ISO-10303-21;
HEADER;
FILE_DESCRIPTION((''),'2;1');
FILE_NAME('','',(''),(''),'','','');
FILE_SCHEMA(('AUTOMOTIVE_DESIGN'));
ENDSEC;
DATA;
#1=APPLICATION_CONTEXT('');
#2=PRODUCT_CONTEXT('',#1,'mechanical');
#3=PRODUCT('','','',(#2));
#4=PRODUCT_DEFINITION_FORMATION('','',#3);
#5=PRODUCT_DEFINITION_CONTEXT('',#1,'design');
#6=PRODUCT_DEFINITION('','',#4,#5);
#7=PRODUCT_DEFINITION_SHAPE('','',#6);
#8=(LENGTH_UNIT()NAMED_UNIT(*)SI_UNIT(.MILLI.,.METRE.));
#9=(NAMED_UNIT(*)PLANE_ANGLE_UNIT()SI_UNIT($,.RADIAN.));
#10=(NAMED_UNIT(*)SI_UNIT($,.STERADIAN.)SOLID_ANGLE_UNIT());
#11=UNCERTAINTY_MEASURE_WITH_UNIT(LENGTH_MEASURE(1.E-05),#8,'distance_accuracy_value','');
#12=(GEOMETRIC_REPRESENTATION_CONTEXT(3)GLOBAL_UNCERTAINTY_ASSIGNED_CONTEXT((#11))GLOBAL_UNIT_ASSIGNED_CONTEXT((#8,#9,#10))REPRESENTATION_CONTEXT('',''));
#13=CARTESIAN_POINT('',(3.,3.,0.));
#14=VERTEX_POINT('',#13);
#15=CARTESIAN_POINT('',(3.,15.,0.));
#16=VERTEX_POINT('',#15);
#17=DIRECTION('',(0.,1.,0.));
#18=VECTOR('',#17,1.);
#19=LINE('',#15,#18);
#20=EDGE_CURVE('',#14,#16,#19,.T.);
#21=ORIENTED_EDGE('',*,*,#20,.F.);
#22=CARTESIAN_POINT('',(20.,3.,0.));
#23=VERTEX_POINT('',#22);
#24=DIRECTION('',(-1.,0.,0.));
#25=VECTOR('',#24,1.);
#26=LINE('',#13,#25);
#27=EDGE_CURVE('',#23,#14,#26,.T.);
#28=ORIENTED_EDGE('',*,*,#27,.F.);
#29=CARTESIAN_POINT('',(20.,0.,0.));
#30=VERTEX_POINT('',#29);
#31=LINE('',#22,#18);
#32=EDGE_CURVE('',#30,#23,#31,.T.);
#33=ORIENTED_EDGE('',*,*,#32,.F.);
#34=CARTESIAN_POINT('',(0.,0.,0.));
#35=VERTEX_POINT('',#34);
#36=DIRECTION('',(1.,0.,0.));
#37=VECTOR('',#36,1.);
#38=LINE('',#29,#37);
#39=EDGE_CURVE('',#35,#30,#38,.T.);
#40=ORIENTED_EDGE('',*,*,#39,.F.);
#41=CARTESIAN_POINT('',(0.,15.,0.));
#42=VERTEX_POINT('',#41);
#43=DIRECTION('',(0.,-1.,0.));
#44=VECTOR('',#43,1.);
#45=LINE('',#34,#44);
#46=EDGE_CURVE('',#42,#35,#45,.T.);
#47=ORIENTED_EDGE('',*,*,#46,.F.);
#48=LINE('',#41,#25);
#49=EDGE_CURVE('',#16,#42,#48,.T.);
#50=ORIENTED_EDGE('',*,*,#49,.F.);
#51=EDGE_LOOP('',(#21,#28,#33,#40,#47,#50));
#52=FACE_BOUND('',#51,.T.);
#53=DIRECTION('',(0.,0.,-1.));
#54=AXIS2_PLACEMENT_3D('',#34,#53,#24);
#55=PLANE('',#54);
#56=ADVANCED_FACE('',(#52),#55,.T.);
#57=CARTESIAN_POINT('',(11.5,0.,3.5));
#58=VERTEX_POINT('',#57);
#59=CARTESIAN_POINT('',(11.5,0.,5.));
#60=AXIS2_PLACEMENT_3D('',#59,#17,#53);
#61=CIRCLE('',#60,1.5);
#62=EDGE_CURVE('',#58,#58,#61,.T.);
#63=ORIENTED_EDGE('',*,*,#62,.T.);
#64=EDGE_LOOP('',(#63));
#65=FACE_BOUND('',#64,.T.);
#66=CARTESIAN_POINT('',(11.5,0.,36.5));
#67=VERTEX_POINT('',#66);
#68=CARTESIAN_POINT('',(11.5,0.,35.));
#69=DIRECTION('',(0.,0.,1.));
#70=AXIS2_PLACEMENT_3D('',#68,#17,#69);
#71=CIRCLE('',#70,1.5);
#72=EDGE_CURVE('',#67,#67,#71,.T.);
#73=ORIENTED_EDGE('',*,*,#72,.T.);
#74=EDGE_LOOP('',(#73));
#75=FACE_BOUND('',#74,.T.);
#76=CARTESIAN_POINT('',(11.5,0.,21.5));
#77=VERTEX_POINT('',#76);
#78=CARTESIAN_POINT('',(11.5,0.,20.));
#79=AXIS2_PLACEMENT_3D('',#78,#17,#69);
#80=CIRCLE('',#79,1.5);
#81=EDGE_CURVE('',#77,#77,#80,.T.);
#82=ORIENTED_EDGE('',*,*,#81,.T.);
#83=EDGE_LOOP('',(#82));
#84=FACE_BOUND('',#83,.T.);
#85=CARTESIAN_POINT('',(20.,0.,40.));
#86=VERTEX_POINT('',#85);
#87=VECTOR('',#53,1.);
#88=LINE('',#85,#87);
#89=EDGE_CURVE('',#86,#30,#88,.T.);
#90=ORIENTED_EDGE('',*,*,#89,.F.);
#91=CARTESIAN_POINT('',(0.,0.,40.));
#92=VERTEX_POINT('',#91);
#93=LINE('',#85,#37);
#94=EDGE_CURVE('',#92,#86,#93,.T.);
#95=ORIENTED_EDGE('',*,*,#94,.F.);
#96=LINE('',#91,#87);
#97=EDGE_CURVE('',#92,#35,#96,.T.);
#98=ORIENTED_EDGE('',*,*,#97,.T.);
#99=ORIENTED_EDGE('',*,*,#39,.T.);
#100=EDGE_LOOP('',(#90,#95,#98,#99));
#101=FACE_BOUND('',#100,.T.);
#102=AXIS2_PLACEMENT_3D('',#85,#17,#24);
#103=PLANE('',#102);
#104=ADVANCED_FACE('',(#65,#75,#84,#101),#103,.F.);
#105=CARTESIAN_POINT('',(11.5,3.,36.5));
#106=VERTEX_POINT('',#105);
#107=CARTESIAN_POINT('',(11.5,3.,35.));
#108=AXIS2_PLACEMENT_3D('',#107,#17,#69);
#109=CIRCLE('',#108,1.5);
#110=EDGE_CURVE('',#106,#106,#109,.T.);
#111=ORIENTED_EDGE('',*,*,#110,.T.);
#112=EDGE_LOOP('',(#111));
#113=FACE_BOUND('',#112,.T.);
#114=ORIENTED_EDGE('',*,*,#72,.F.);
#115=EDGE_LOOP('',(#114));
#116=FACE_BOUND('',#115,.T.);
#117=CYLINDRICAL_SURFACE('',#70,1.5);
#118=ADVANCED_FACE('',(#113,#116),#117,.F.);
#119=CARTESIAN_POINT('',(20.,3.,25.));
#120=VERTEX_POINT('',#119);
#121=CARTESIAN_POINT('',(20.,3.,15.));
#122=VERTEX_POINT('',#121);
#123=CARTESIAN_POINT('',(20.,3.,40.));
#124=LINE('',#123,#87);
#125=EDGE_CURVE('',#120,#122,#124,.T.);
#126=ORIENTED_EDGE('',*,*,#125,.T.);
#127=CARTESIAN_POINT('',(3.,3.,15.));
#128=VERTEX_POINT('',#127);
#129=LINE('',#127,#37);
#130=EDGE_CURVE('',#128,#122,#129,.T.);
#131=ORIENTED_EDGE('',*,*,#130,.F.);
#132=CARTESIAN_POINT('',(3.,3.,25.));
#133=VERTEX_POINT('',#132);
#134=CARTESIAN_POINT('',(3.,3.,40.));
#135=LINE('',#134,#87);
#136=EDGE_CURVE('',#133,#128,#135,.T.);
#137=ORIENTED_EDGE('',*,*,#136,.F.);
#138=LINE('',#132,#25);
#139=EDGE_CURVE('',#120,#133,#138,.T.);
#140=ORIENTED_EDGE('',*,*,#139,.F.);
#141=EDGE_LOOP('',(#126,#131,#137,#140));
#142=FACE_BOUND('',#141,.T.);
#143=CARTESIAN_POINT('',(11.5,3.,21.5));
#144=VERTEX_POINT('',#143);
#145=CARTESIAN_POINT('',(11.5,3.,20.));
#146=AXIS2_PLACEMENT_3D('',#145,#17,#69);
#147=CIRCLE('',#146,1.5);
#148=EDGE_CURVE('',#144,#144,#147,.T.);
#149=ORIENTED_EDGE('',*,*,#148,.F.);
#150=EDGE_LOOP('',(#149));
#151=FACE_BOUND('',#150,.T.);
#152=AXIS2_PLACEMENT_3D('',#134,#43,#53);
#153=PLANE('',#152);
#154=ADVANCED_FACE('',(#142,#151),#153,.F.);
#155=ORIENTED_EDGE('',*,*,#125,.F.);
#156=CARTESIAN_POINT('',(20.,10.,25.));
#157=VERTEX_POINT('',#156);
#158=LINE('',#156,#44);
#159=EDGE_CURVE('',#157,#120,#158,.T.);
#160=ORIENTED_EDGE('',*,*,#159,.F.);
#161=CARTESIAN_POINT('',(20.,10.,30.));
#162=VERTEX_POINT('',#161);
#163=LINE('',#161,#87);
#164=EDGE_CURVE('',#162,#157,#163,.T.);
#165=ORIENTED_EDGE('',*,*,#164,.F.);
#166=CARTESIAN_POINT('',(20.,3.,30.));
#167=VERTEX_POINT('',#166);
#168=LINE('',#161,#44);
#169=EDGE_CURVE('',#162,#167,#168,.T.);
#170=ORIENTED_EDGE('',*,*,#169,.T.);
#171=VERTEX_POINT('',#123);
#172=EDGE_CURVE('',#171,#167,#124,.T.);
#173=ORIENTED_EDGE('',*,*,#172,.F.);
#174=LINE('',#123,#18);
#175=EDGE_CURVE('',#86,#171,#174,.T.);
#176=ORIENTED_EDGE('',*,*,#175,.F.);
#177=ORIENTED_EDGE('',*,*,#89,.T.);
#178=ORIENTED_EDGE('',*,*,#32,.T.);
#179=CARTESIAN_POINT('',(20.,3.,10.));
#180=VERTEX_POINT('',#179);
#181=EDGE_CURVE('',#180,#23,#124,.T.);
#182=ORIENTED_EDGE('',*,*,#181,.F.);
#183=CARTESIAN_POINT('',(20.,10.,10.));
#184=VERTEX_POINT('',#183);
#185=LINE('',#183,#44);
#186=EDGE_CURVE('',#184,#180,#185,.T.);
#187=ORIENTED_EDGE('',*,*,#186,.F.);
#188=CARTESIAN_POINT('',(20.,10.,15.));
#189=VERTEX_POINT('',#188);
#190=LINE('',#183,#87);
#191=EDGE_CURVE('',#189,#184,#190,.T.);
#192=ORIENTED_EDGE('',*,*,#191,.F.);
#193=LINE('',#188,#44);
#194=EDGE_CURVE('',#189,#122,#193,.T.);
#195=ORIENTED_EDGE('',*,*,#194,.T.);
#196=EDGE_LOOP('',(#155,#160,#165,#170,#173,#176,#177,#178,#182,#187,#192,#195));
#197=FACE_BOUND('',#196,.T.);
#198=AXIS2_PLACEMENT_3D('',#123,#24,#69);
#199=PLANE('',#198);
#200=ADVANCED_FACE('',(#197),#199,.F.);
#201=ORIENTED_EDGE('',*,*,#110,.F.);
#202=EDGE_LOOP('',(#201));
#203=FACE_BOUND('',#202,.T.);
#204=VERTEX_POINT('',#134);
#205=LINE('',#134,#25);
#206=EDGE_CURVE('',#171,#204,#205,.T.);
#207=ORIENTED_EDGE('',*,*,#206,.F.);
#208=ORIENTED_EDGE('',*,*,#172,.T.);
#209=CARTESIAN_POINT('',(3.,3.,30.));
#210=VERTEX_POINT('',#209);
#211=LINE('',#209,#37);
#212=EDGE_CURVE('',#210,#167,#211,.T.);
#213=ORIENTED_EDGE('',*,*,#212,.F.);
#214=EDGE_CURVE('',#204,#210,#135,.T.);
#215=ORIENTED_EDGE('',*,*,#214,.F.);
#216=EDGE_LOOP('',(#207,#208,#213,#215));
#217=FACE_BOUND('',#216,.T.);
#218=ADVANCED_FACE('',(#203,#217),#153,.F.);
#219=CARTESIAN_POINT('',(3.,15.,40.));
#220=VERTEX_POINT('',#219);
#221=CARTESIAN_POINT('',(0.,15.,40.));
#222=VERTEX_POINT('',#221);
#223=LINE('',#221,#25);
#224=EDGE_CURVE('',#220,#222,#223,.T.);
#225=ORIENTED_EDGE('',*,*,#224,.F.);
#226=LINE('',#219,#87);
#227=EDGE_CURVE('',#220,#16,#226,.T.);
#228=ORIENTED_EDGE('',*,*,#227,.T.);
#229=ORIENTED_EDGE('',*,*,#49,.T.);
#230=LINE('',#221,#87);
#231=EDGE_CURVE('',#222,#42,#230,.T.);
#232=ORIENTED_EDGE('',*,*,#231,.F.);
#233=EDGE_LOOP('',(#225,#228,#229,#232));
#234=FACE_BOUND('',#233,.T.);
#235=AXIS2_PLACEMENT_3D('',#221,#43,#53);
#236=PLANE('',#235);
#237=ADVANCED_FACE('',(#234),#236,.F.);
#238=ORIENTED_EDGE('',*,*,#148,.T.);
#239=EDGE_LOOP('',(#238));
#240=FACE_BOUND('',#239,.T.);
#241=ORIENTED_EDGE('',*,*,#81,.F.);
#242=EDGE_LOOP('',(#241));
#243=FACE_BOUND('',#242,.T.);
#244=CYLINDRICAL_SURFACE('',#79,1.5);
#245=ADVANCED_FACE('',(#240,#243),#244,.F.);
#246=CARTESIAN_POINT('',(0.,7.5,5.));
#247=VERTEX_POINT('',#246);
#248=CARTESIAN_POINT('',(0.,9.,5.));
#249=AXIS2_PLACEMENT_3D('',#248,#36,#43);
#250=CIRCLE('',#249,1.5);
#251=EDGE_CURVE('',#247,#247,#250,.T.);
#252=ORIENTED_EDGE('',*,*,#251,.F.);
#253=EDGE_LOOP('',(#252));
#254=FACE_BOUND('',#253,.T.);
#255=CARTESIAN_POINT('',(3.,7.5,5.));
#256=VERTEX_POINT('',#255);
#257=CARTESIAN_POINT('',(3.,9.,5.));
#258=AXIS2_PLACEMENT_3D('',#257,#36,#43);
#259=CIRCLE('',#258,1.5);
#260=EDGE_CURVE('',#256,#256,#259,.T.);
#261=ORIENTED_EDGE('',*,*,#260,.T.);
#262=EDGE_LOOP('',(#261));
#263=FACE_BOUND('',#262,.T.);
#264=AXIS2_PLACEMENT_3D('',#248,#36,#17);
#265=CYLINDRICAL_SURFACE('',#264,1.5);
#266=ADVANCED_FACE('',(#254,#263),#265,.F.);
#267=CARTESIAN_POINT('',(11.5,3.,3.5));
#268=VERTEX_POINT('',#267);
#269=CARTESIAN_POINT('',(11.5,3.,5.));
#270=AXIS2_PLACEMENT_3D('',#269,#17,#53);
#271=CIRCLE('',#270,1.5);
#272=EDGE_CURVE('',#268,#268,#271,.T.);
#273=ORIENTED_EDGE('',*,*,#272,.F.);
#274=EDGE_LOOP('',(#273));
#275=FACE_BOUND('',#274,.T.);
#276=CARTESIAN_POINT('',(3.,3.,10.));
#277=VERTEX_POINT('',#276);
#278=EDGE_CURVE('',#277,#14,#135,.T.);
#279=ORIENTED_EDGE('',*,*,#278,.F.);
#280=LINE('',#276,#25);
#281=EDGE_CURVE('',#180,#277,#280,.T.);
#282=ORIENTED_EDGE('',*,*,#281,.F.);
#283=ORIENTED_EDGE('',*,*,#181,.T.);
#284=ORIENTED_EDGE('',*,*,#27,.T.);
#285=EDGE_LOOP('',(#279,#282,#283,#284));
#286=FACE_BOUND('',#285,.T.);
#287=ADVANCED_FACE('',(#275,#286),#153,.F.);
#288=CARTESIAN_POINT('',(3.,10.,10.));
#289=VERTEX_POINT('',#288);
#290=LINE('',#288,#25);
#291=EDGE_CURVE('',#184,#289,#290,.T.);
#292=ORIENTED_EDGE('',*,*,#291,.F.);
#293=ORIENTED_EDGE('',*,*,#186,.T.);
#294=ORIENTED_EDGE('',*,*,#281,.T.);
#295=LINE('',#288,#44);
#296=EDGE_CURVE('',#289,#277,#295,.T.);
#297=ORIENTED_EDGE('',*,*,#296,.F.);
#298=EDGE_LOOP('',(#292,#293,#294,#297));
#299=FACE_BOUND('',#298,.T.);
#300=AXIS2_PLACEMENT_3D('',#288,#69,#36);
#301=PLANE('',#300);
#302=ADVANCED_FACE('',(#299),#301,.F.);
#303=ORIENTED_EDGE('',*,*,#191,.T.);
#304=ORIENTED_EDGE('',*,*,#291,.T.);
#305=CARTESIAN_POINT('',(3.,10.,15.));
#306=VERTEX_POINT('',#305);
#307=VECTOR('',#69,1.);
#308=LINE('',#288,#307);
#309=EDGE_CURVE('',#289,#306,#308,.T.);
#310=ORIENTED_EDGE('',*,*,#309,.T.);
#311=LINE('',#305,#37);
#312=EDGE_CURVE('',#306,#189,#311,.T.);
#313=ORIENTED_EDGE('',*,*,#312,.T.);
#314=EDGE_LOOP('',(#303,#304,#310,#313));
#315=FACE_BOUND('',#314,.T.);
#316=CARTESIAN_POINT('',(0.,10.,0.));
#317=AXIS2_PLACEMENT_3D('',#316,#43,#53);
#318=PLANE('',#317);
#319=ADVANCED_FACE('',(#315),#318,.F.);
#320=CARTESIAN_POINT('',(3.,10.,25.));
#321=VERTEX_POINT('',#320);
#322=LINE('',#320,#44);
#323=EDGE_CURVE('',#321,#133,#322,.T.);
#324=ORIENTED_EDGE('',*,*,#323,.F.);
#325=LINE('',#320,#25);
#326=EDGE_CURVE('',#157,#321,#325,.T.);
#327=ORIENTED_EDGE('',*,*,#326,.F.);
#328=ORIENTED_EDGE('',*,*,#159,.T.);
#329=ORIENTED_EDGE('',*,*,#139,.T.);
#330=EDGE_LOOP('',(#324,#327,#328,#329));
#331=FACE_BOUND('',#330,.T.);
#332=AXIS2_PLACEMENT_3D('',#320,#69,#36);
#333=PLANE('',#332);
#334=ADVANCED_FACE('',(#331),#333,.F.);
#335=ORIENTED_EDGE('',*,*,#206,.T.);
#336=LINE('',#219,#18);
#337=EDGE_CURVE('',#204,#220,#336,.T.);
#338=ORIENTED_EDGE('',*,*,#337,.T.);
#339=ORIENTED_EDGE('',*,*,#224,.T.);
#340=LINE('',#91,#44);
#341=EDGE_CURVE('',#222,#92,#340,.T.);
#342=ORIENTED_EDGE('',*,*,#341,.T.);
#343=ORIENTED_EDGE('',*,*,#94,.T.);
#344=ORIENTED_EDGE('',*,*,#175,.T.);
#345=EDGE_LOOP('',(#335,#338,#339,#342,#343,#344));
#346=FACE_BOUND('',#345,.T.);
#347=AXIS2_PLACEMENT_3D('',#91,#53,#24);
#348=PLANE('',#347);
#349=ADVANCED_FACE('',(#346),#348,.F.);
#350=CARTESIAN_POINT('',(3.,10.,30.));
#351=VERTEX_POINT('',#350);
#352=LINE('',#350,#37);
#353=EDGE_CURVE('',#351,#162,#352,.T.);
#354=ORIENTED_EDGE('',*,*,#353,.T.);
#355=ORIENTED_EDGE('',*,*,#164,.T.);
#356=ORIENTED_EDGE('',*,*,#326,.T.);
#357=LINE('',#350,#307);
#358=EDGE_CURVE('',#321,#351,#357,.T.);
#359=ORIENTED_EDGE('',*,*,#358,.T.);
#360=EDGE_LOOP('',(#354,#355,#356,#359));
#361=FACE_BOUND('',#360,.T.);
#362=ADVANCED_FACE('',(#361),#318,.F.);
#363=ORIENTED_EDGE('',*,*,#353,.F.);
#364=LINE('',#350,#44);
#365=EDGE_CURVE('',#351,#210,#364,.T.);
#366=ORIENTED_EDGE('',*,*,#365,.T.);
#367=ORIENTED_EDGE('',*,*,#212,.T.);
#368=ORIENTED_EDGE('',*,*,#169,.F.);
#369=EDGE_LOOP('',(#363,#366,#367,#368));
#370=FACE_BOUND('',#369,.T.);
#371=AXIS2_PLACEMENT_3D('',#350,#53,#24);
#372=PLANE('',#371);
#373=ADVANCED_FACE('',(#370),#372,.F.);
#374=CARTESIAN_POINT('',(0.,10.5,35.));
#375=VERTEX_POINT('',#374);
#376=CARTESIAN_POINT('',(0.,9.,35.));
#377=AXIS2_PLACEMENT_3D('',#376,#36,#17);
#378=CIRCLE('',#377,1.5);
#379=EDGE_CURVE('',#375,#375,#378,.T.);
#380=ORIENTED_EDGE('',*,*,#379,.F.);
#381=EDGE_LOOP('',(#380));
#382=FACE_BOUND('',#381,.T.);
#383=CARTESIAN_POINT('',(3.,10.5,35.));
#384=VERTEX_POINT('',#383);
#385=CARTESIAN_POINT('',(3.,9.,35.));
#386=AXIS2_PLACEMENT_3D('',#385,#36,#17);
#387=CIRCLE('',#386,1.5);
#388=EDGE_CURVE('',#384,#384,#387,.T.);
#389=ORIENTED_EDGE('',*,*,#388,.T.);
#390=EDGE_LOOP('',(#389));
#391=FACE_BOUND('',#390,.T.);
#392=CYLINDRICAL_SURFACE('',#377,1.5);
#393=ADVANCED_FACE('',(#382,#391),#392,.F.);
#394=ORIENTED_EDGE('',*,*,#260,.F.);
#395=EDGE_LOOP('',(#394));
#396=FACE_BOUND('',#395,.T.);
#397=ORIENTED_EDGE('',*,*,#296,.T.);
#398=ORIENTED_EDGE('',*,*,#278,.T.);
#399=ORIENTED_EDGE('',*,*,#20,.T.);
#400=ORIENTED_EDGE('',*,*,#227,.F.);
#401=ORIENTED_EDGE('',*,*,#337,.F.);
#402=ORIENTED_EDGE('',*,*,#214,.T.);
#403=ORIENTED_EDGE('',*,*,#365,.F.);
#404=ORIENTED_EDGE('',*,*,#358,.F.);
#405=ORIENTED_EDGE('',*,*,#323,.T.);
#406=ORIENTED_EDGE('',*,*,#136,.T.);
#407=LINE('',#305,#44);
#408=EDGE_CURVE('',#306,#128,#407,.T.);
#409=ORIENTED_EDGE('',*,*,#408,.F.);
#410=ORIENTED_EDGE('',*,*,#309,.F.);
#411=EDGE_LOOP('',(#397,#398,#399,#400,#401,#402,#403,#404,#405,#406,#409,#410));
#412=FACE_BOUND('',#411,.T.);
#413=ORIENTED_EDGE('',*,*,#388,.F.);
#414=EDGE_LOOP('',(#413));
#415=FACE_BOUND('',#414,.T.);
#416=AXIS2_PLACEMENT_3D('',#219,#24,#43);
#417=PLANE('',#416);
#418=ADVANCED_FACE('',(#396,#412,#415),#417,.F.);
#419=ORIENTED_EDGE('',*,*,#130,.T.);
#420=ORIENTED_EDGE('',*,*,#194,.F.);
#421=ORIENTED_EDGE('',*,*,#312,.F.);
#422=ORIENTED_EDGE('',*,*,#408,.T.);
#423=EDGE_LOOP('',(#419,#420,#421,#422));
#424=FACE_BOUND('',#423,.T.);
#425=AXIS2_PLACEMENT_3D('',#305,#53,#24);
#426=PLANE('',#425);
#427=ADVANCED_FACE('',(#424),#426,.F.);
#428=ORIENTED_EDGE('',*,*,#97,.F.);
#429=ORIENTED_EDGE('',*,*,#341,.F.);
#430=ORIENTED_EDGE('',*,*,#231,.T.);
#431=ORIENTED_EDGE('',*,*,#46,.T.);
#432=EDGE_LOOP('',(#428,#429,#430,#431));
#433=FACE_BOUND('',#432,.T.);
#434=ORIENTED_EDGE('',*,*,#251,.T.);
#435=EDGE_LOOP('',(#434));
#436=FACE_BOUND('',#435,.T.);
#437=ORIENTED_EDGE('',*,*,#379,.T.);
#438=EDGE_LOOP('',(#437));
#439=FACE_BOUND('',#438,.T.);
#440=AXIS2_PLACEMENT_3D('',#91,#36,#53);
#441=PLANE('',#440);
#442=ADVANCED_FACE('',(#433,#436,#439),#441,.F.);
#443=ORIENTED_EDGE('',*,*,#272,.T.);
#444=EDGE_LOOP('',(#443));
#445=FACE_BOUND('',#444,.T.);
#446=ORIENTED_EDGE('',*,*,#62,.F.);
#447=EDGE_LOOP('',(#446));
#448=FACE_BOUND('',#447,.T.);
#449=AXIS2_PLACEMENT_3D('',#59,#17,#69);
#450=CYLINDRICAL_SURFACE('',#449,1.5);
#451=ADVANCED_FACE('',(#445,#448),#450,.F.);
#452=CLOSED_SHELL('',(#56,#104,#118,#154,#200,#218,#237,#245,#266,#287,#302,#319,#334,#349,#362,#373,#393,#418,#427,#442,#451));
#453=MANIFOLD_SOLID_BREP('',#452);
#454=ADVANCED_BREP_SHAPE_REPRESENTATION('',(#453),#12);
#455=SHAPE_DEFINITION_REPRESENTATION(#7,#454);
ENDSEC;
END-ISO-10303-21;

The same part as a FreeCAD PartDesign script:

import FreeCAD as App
import Part
import Sketcher

doc = App.newDocument("Part")
body = doc.addObject("PartDesign::Body", "Body")

# Sketch on XY plane
sketch1 = doc.addObject("Sketcher::SketchObject", "Sketch")
body.addObject(sketch1)
sketch1.AttachmentSupport = (doc.XY_Plane, [""])
sketch1.MapMode = "FlatFace"
sketch1.addGeometry([
    Part.LineSegment(App.Vector(0, 15, 0), App.Vector(0, 0, 0)),  # 0
    Part.LineSegment(App.Vector(0, 0, 0), App.Vector(20, 0, 0)),  # 1
    Part.LineSegment(App.Vector(20, 0, 0), App.Vector(20, 3, 0)),  # 2
    Part.LineSegment(App.Vector(20, 3, 0), App.Vector(3, 3, 0)),  # 3
    Part.LineSegment(App.Vector(3, 3, 0), App.Vector(3, 15, 0)),  # 4
    Part.LineSegment(App.Vector(3, 15, 0), App.Vector(0, 15, 0)),  # 5
], False)
sketch1.addConstraint([
    Sketcher.Constraint("Coincident", 0, 2, 1, 1),
    Sketcher.Constraint("Coincident", 1, 2, 2, 1),
    Sketcher.Constraint("Coincident", 2, 2, 3, 1),
    Sketcher.Constraint("Coincident", 3, 2, 4, 1),
    Sketcher.Constraint("Coincident", 4, 2, 5, 1),
    Sketcher.Constraint("Coincident", 5, 2, 0, 1),
    Sketcher.Constraint("Vertical", 0),
    Sketcher.Constraint("Horizontal", 1),
    Sketcher.Constraint("Vertical", 2),
    Sketcher.Constraint("Horizontal", 3),
    Sketcher.Constraint("Vertical", 4),
    Sketcher.Constraint("Horizontal", 5),
    Sketcher.Constraint("Coincident", 0, 2, -1, 1),
    Sketcher.Constraint("Equal", 5, 2),
    Sketcher.Constraint("DistanceX", 1, 1, 1, 2, 20.0),
    Sketcher.Constraint("DistanceX", 3, 2, 3, 1, 17.0),
    Sketcher.Constraint("DistanceY", 0, 2, 0, 1, 15.0),
])
pad1 = doc.addObject("PartDesign::Pad", "Pad")
body.addObject(pad1)
pad1.Profile = sketch1
pad1.Length = 40

# Sketch on YZ plane
sketch2 = doc.addObject("Sketcher::SketchObject", "Sketch001")
body.addObject(sketch2)
sketch2.AttachmentSupport = (doc.YZ_Plane, [""])
sketch2.MapMode = "FlatFace"
sketch2.AttachmentOffset = App.Placement(App.Vector(0, 0, 3), App.Rotation())
sketch2.addGeometry([
    Part.Circle(App.Vector(9, 35, 0), App.Vector(0, 0, 1), 1.5),
    Part.Circle(App.Vector(9, 5, 0), App.Vector(0, 0, 1), 1.5),
], False)
sketch2.addConstraint([
    Sketcher.Constraint("Equal", 0, 1),
    Sketcher.Constraint("Vertical", 0, 3, 1, 3),
    Sketcher.Constraint("Diameter", 0, 3.0),
    Sketcher.Constraint("DistanceX", -1, 1, 0, 3, 9.0),
    Sketcher.Constraint("DistanceY", -1, 1, 0, 3, 35.0),
    Sketcher.Constraint("DistanceY", -1, 1, 1, 3, 5.0),
])
pocket1 = doc.addObject("PartDesign::Pocket", "Pocket")
body.addObject(pocket1)
pocket1.Profile = sketch2
pocket1.Type = "ThroughAll"

# Sketch on XZ plane
sketch3 = doc.addObject("Sketcher::SketchObject", "Sketch002")
body.addObject(sketch3)
sketch3.AttachmentSupport = (doc.XZ_Plane, [""])
sketch3.MapMode = "FlatFace"
sketch3.AttachmentOffset = App.Placement(App.Vector(0, 0, -3), App.Rotation())
sketch3.addGeometry([
    Part.Circle(App.Vector(11.5, 20, 0), App.Vector(0, 0, 1), 1.5),
    Part.Circle(App.Vector(11.5, 35, 0), App.Vector(0, 0, 1), 1.5),
    Part.Circle(App.Vector(11.5, 5, 0), App.Vector(0, 0, 1), 1.5),
], False)
sketch3.addConstraint([
    Sketcher.Constraint("Equal", 0, 1),
    Sketcher.Constraint("Equal", 1, 2),
    Sketcher.Constraint("Vertical", 0, 3, 1, 3),
    Sketcher.Constraint("Vertical", 1, 3, 2, 3),
    Sketcher.Constraint("Diameter", 0, 3.0),
    Sketcher.Constraint("DistanceY", -1, 1, 0, 3, 20.0),
    Sketcher.Constraint("DistanceY", -1, 1, 1, 3, 35.0),
    Sketcher.Constraint("DistanceY", -1, 1, 2, 3, 5.0),
    Sketcher.Constraint("DistanceX", -1, 1, 0, 3, 11.5),
])
pocket2 = doc.addObject("PartDesign::Pocket", "Pocket001")
body.addObject(pocket2)
pocket2.Profile = sketch3
pocket2.Type = "ThroughAll"
pocket2.Reversed = True

# Sketch on XZ plane
sketch4 = doc.addObject("Sketcher::SketchObject", "Sketch003")
body.addObject(sketch4)
sketch4.AttachmentSupport = (doc.XZ_Plane, [""])
sketch4.MapMode = "FlatFace"
sketch4.AttachmentOffset = App.Placement(App.Vector(0, 0, -3), App.Rotation())
sketch4.addGeometry([
    Part.LineSegment(App.Vector(3, 25, 0), App.Vector(3, 30, 0)),  # 0
    Part.LineSegment(App.Vector(3, 30, 0), App.Vector(20, 30, 0)),  # 1
    Part.LineSegment(App.Vector(20, 30, 0), App.Vector(20, 25, 0)),  # 2
    Part.LineSegment(App.Vector(20, 25, 0), App.Vector(3, 25, 0)),  # 3
    Part.LineSegment(App.Vector(3, 10, 0), App.Vector(3, 15, 0)),  # 4
    Part.LineSegment(App.Vector(3, 15, 0), App.Vector(20, 15, 0)),  # 5
    Part.LineSegment(App.Vector(20, 15, 0), App.Vector(20, 10, 0)),  # 6
    Part.LineSegment(App.Vector(20, 10, 0), App.Vector(3, 10, 0)),  # 7
], False)
sketch4.addConstraint([
    Sketcher.Constraint("Coincident", 0, 2, 1, 1),
    Sketcher.Constraint("Coincident", 1, 2, 2, 1),
    Sketcher.Constraint("Coincident", 2, 2, 3, 1),
    Sketcher.Constraint("Coincident", 3, 2, 0, 1),
    Sketcher.Constraint("Coincident", 4, 2, 5, 1),
    Sketcher.Constraint("Coincident", 5, 2, 6, 1),
    Sketcher.Constraint("Coincident", 6, 2, 7, 1),
    Sketcher.Constraint("Coincident", 7, 2, 4, 1),
    Sketcher.Constraint("Vertical", 0),
    Sketcher.Constraint("Horizontal", 1),
    Sketcher.Constraint("Vertical", 2),
    Sketcher.Constraint("Horizontal", 3),
    Sketcher.Constraint("Vertical", 4),
    Sketcher.Constraint("Horizontal", 5),
    Sketcher.Constraint("Vertical", 6),
    Sketcher.Constraint("Horizontal", 7),
    Sketcher.Constraint("Vertical", 3, 2, 4, 2),
    Sketcher.Constraint("Vertical", 2, 2, 5, 2),
    Sketcher.Constraint("Equal", 2, 4),
    Sketcher.Constraint("DistanceX", 1, 1, 1, 2, 17.0),
    Sketcher.Constraint("DistanceY", 0, 1, 0, 2, 5.0),
    Sketcher.Constraint("DistanceX", -1, 1, 0, 2, 3.0),
    Sketcher.Constraint("DistanceY", -1, 1, 0, 2, 30.0),
    Sketcher.Constraint("DistanceY", -1, 1, 4, 2, 15.0),
])
pad2 = doc.addObject("PartDesign::Pad", "Pad001")
body.addObject(pad2)
pad2.Profile = sketch4
pad2.Length = 7
pad2.Reversed = True

doc.recompute()
